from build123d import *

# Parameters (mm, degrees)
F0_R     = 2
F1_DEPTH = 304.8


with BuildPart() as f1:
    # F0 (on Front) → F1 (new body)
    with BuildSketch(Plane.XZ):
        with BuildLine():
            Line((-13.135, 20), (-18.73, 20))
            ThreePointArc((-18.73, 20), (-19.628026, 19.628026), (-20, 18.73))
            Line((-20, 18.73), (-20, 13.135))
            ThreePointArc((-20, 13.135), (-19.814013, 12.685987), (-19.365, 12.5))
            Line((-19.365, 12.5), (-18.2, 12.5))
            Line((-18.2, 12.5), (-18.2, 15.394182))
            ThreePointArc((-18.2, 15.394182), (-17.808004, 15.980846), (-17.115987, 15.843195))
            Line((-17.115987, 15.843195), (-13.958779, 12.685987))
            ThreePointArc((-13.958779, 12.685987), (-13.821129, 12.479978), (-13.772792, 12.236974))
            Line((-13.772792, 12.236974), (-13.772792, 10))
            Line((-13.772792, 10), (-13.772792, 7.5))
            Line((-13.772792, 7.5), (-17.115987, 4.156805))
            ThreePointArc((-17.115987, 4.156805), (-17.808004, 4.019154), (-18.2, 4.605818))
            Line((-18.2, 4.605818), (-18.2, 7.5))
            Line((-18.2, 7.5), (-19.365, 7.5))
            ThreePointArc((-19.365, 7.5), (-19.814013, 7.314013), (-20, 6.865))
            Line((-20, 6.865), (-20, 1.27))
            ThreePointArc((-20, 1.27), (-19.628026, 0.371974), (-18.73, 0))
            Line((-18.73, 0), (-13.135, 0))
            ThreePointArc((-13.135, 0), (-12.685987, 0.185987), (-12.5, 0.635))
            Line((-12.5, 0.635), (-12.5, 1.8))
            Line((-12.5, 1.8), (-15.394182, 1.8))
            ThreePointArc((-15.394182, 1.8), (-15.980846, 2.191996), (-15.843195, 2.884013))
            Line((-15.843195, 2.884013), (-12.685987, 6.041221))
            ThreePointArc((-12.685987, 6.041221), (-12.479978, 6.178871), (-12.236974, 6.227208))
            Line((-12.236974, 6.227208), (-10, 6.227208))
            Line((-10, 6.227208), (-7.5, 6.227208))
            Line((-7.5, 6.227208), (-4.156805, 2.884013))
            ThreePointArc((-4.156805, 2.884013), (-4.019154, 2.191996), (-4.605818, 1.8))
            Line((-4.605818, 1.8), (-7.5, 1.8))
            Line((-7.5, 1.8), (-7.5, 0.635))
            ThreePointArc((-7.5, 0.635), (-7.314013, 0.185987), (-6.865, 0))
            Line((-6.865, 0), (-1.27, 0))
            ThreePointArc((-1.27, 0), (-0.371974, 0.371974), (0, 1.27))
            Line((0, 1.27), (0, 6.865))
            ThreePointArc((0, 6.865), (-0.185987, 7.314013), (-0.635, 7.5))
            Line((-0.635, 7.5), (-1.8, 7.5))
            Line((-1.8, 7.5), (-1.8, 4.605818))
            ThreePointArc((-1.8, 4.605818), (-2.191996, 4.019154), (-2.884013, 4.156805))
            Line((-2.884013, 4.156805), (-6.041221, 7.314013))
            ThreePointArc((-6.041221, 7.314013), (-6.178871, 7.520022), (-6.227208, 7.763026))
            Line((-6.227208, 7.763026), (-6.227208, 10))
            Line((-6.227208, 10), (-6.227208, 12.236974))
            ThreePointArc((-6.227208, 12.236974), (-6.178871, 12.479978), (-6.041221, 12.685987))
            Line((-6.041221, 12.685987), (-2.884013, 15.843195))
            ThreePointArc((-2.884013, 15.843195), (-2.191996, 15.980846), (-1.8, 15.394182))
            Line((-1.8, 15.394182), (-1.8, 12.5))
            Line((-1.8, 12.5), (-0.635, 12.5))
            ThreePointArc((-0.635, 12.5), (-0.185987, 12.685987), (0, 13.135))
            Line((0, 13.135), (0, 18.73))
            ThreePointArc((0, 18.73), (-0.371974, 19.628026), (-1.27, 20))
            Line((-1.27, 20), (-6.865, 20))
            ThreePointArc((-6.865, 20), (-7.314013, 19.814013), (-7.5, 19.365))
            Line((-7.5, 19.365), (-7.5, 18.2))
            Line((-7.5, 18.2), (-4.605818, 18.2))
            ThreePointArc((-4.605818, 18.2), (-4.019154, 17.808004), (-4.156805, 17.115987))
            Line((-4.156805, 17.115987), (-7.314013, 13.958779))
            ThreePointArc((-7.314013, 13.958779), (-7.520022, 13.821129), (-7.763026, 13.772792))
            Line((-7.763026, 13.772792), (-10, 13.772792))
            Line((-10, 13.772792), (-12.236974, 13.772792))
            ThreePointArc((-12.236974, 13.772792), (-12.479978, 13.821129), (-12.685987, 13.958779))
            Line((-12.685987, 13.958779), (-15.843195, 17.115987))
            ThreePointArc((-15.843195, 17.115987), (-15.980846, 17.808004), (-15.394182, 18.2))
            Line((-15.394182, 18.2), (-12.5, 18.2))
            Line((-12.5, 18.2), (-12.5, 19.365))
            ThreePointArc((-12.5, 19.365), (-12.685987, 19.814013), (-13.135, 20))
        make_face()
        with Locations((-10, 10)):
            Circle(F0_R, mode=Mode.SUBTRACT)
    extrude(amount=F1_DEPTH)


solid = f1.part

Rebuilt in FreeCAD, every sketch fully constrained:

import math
import FreeCAD as App
import Part
import Sketcher
from FreeCAD import Vector
Q = App.Units.Quantity

doc = App.newDocument("Part")
body = doc.addObject("PartDesign::Body", "Body")

# Sketch on XZ plane
sketch1 = body.newObject("Sketcher::SketchObject", "Sketch")
sketch1.AttachmentSupport = (doc.getObject("XZ_Plane"), [""])
sketch1.MapMode = "FlatFace"
sketch1.addGeometry(Part.LineSegment(Vector(-13.13, 20, 0), Vector(-18.73, 20, 0)), False)
sketch1.addGeometry(Part.ArcOfCircle(Part.Circle(Vector(-18.73, 18.73, 0), Vector(0, 0, 1), 1.27), math.radians(90), math.radians(180)), False)
sketch1.addGeometry(Part.LineSegment(Vector(-20, 18.73, 0), Vector(-20, 13.13, 0)), False)
sketch1.addGeometry(Part.ArcOfCircle(Part.Circle(Vector(-19.37, 13.13, 0), Vector(0, 0, 1), 0.63), math.radians(180), math.radians(270)), False)
sketch1.addGeometry(Part.LineSegment(Vector(-19.36, 12.5, 0), Vector(-18.2, 12.5, 0)), False)
sketch1.addGeometry(Part.LineSegment(Vector(-18.2, 12.5, 0), Vector(-18.2, 15.39, 0)), False)
sketch1.addGeometry(Part.ArcOfCircle(Part.Circle(Vector(-17.57, 15.39, 0), Vector(0, 0, 1), 0.63), math.radians(45), math.radians(180)), False)
sketch1.addGeometry(Part.LineSegment(Vector(-17.12, 15.84, 0), Vector(-13.96, 12.69, 0)), False)
sketch1.addGeometry(Part.ArcOfCircle(Part.Circle(Vector(-14.41, 12.24, 0), Vector(0, 0, 1), 0.64), math.radians(0), math.radians(45)), False)
sketch1.addGeometry(Part.LineSegment(Vector(-13.77, 12.24, 0), Vector(-13.77, 7.5, 0)), False)
sketch1.addGeometry(Part.LineSegment(Vector(-13.77, 7.5, 0), Vector(-17.12, 4.16, 0)), False)
sketch1.addGeometry(Part.ArcOfCircle(Part.Circle(Vector(-17.57, 4.61, 0), Vector(0, 0, 1), 0.63), math.radians(180), math.radians(315)), False)
sketch1.addGeometry(Part.LineSegment(Vector(-18.2, 4.61, 0), Vector(-18.2, 7.5, 0)), False)
sketch1.addGeometry(Part.LineSegment(Vector(-18.2, 7.5, 0), Vector(-19.36, 7.5, 0)), False)
sketch1.addGeometry(Part.ArcOfCircle(Part.Circle(Vector(-19.37, 6.87, 0), Vector(0, 0, 1), 0.63), math.radians(90), math.radians(180)), False)
sketch1.addGeometry(Part.LineSegment(Vector(-20, 6.87, 0), Vector(-20, 1.27, 0)), False)
sketch1.addGeometry(Part.ArcOfCircle(Part.Circle(Vector(-18.73, 1.27, 0), Vector(0, 0, 1), 1.27), math.radians(180), math.radians(270)), False)
sketch1.addGeometry(Part.LineSegment(Vector(-18.73, 0, 0), Vector(-13.13, 0, 0)), False)
sketch1.addGeometry(Part.ArcOfCircle(Part.Circle(Vector(-13.13, 0.63, 0), Vector(0, 0, 1), 0.63), math.radians(-90), math.radians(0)), False)
sketch1.addGeometry(Part.LineSegment(Vector(-12.5, 0.64, 0), Vector(-12.5, 1.8, 0)), False)
sketch1.addGeometry(Part.LineSegment(Vector(-12.5, 1.8, 0), Vector(-15.39, 1.8, 0)), False)
sketch1.addGeometry(Part.ArcOfCircle(Part.Circle(Vector(-15.39, 2.43, 0), Vector(0, 0, 1), 0.63), math.radians(135), math.radians(270)), False)
sketch1.addGeometry(Part.LineSegment(Vector(-15.84, 2.88, 0), Vector(-12.69, 6.04, 0)), False)
sketch1.addGeometry(Part.ArcOfCircle(Part.Circle(Vector(-12.24, 5.59, 0), Vector(0, 0, 1), 0.64), math.radians(90), math.radians(135)), False)
sketch1.addGeometry(Part.LineSegment(Vector(-12.24, 6.23, 0), Vector(-7.5, 6.23, 0)), False)
sketch1.addGeometry(Part.LineSegment(Vector(-7.5, 6.23, 0), Vector(-4.16, 2.88, 0)), False)
sketch1.addGeometry(Part.ArcOfCircle(Part.Circle(Vector(-4.61, 2.43, 0), Vector(0, 0, 1), 0.63), math.radians(-90), math.radians(45)), False)
sketch1.addGeometry(Part.LineSegment(Vector(-4.61, 1.8, 0), Vector(-7.5, 1.8, 0)), False)
sketch1.addGeometry(Part.LineSegment(Vector(-7.5, 1.8, 0), Vector(-7.5, 0.64, 0)), False)
sketch1.addGeometry(Part.ArcOfCircle(Part.Circle(Vector(-6.87, 0.63, 0), Vector(0, 0, 1), 0.63), math.radians(180), math.radians(270)), False)
sketch1.addGeometry(Part.LineSegment(Vector(-6.87, 0, 0), Vector(-1.27, 0, 0)), False)
sketch1.addGeometry(Part.ArcOfCircle(Part.Circle(Vector(-1.27, 1.27, 0), Vector(0, 0, 1), 1.27), math.radians(-90), math.radians(0)), False)
sketch1.addGeometry(Part.LineSegment(Vector(0, 1.27, 0), Vector(0, 6.87, 0)), False)
sketch1.addGeometry(Part.ArcOfCircle(Part.Circle(Vector(-0.63, 6.87, 0), Vector(0, 0, 1), 0.63), math.radians(0), math.radians(90)), False)
sketch1.addGeometry(Part.LineSegment(Vector(-0.64, 7.5, 0), Vector(-1.8, 7.5, 0)), False)
sketch1.addGeometry(Part.LineSegment(Vector(-1.8, 7.5, 0), Vector(-1.8, 4.61, 0)), False)
sketch1.addGeometry(Part.ArcOfCircle(Part.Circle(Vector(-2.43, 4.61, 0), Vector(0, 0, 1), 0.63), math.radians(-135), math.radians(0)), False)
sketch1.addGeometry(Part.LineSegment(Vector(-2.88, 4.16, 0), Vector(-6.04, 7.31, 0)), False)
sketch1.addGeometry(Part.ArcOfCircle(Part.Circle(Vector(-5.59, 7.76, 0), Vector(0, 0, 1), 0.64), math.radians(-180), math.radians(-135)), False)
sketch1.addGeometry(Part.LineSegment(Vector(-6.23, 7.76, 0), Vector(-6.23, 12.24, 0)), False)
sketch1.addGeometry(Part.ArcOfCircle(Part.Circle(Vector(-5.59, 12.24, 0), Vector(0, 0, 1), 0.64), math.radians(135), math.radians(180)), False)
sketch1.addGeometry(Part.LineSegment(Vector(-6.04, 12.69, 0), Vector(-2.88, 15.84, 0)), False)
sketch1.addGeometry(Part.ArcOfCircle(Part.Circle(Vector(-2.43, 15.39, 0), Vector(0, 0, 1), 0.63), math.radians(0), math.radians(135)), False)
sketch1.addGeometry(Part.LineSegment(Vector(-1.8, 15.39, 0), Vector(-1.8, 12.5, 0)), False)
sketch1.addGeometry(Part.LineSegment(Vector(-1.8, 12.5, 0), Vector(-0.64, 12.5, 0)), False)
sketch1.addGeometry(Part.ArcOfCircle(Part.Circle(Vector(-0.63, 13.13, 0), Vector(0, 0, 1), 0.63), math.radians(-90), math.radians(0)), False)
sketch1.addGeometry(Part.LineSegment(Vector(0, 13.13, 0), Vector(0, 18.73, 0)), False)
sketch1.addGeometry(Part.ArcOfCircle(Part.Circle(Vector(-1.27, 18.73, 0), Vector(0, 0, 1), 1.27), math.radians(0), math.radians(90)), False)
sketch1.addGeometry(Part.LineSegment(Vector(-1.27, 20, 0), Vector(-6.87, 20, 0)), False)
sketch1.addGeometry(Part.ArcOfCircle(Part.Circle(Vector(-6.87, 19.37, 0), Vector(0, 0, 1), 0.63), math.radians(90), math.radians(180)), False)
sketch1.addGeometry(Part.LineSegment(Vector(-7.5, 19.36, 0), Vector(-7.5, 18.2, 0)), False)
sketch1.addGeometry(Part.LineSegment(Vector(-7.5, 18.2, 0), Vector(-4.61, 18.2, 0)), False)
sketch1.addGeometry(Part.ArcOfCircle(Part.Circle(Vector(-4.61, 17.57, 0), Vector(0, 0, 1), 0.63), math.radians(-45), math.radians(90)), False)
sketch1.addGeometry(Part.LineSegment(Vector(-4.16, 17.12, 0), Vector(-7.31, 13.96, 0)), False)
sketch1.addGeometry(Part.ArcOfCircle(Part.Circle(Vector(-7.76, 14.41, 0), Vector(0, 0, 1), 0.64), math.radians(-90), math.radians(-45)), False)
sketch1.addGeometry(Part.LineSegment(Vector(-7.76, 13.77, 0), Vector(-12.24, 13.77, 0)), False)
sketch1.addGeometry(Part.ArcOfCircle(Part.Circle(Vector(-12.24, 14.41, 0), Vector(0, 0, 1), 0.64), math.radians(-135), math.radians(-90)), False)
sketch1.addGeometry(Part.LineSegment(Vector(-12.69, 13.96, 0), Vector(-15.84, 17.12, 0)), False)
sketch1.addGeometry(Part.ArcOfCircle(Part.Circle(Vector(-15.39, 17.57, 0), Vector(0, 0, 1), 0.63), math.radians(90), math.radians(225)), False)
sketch1.addGeometry(Part.LineSegment(Vector(-15.39, 18.2, 0), Vector(-12.5, 18.2, 0)), False)
sketch1.addGeometry(Part.LineSegment(Vector(-12.5, 18.2, 0), Vector(-12.5, 19.36, 0)), False)
sketch1.addGeometry(Part.ArcOfCircle(Part.Circle(Vector(-13.13, 19.37, 0), Vector(0, 0, 1), 0.63), math.radians(0), math.radians(90)), False)
sketch1.addGeometry(Part.Circle(Vector(-10, 10, 0), Vector(0, 0, 1), 2), False)
sketch1.addConstraint(Sketcher.Constraint("Tangent", 0, 2, 1, 1))
sketch1.addConstraint(Sketcher.Constraint("Tangent", 1, 2, 2, 1))
sketch1.addConstraint(Sketcher.Constraint("Tangent", 2, 2, 3, 1))
sketch1.addConstraint(Sketcher.Constraint("Tangent", 3, 2, 4, 1))
sketch1.addConstraint(Sketcher.Constraint("Coincident", 4, 2, 5, 1))
sketch1.addConstraint(Sketcher.Constraint("Tangent", 5, 2, 6, 2))
sketch1.addConstraint(Sketcher.Constraint("Tangent", 6, 1, 7, 1))
sketch1.addConstraint(Sketcher.Constraint("Coincident", 7, 2, 8, 2))
sketch1.addConstraint(Sketcher.Constraint("Coincident", 8, 1, 9, 1))
sketch1.addConstraint(Sketcher.Constraint("Coincident", 9, 2, 10, 1))
sketch1.addConstraint(Sketcher.Constraint("Tangent", 10, 2, 11, 2))
sketch1.addConstraint(Sketcher.Constraint("Tangent", 11, 1, 12, 1))
sketch1.addConstraint(Sketcher.Constraint("Coincident", 12, 2, 13, 1))
sketch1.addConstraint(Sketcher.Constraint("Tangent", 13, 2, 14, 1))
sketch1.addConstraint(Sketcher.Constraint("Tangent", 14, 2, 15, 1))
sketch1.addConstraint(Sketcher.Constraint("Tangent", 15, 2, 16, 1))
sketch1.addConstraint(Sketcher.Constraint("Tangent", 16, 2, 17, 1))
sketch1.addConstraint(Sketcher.Constraint("Tangent", 17, 2, 18, 1))
sketch1.addConstraint(Sketcher.Constraint("Tangent", 18, 2, 19, 1))
sketch1.addConstraint(Sketcher.Constraint("Coincident", 19, 2, 20, 1))
sketch1.addConstraint(Sketcher.Constraint("Tangent", 20, 2, 21, 2))
sketch1.addConstraint(Sketcher.Constraint("Tangent", 21, 1, 22, 1))
sketch1.addConstraint(Sketcher.Constraint("Coincident", 22, 2, 23, 2))
sketch1.addConstraint(Sketcher.Constraint("Coincident", 23, 1, 24, 1))
sketch1.addConstraint(Sketcher.Constraint("Coincident", 24, 2, 25, 1))
sketch1.addConstraint(Sketcher.Constraint("Tangent", 25, 2, 26, 2))
sketch1.addConstraint(Sketcher.Constraint("Tangent", 26, 1, 27, 1))
sketch1.addConstraint(Sketcher.Constraint("Coincident", 27, 2, 28, 1))
sketch1.addConstraint(Sketcher.Constraint("Tangent", 28, 2, 29, 1))
sketch1.addConstraint(Sketcher.Constraint("Tangent", 29, 2, 30, 1))
sketch1.addConstraint(Sketcher.Constraint("Tangent", 30, 2, 31, 1))
sketch1.addConstraint(Sketcher.Constraint("Tangent", 31, 2, 32, 1))
sketch1.addConstraint(Sketcher.Constraint("Tangent", 32, 2, 33, 1))
sketch1.addConstraint(Sketcher.Constraint("Tangent", 33, 2, 34, 1))
sketch1.addConstraint(Sketcher.Constraint("Coincident", 34, 2, 35, 1))
sketch1.addConstraint(Sketcher.Constraint("Tangent", 35, 2, 36, 2))
sketch1.addConstraint(Sketcher.Constraint("Tangent", 36, 1, 37, 1))
sketch1.addConstraint(Sketcher.Constraint("Coincident", 37, 2, 38, 2))
sketch1.addConstraint(Sketcher.Constraint("Coincident", 38, 1, 39, 1))
sketch1.addConstraint(Sketcher.Constraint("Coincident", 39, 2, 40, 2))
sketch1.addConstraint(Sketcher.Constraint("Coincident", 40, 1, 41, 1))
sketch1.addConstraint(Sketcher.Constraint("Tangent", 41, 2, 42, 2))
sketch1.addConstraint(Sketcher.Constraint("Tangent", 42, 1, 43, 1))
sketch1.addConstraint(Sketcher.Constraint("Coincident", 43, 2, 44, 1))
sketch1.addConstraint(Sketcher.Constraint("Tangent", 44, 2, 45, 1))
sketch1.addConstraint(Sketcher.Constraint("Tangent", 45, 2, 46, 1))
sketch1.addConstraint(Sketcher.Constraint("Tangent", 46, 2, 47, 1))
sketch1.addConstraint(Sketcher.Constraint("Tangent", 47, 2, 48, 1))
sketch1.addConstraint(Sketcher.Constraint("Tangent", 48, 2, 49, 1))
sketch1.addConstraint(Sketcher.Constraint("Tangent", 49, 2, 50, 1))
sketch1.addConstraint(Sketcher.Constraint("Coincident", 50, 2, 51, 1))
sketch1.addConstraint(Sketcher.Constraint("Tangent", 51, 2, 52, 2))
sketch1.addConstraint(Sketcher.Constraint("Tangent", 52, 1, 53, 1))
sketch1.addConstraint(Sketcher.Constraint("Coincident", 53, 2, 54, 2))
sketch1.addConstraint(Sketcher.Constraint("Coincident", 54, 1, 55, 1))
sketch1.addConstraint(Sketcher.Constraint("Coincident", 55, 2, 56, 2))
sketch1.addConstraint(Sketcher.Constraint("Coincident", 56, 1, 57, 1))
sketch1.addConstraint(Sketcher.Constraint("Tangent", 57, 2, 58, 2))
sketch1.addConstraint(Sketcher.Constraint("Tangent", 58, 1, 59, 1))
sketch1.addConstraint(Sketcher.Constraint("Coincident", 59, 2, 60, 1))
sketch1.addConstraint(Sketcher.Constraint("Tangent", 60, 2, 61, 1))
sketch1.addConstraint(Sketcher.Constraint("Tangent", 61, 2, 0, 1))
sketch1.addConstraint(Sketcher.Constraint("Horizontal", 0))
sketch1.addConstraint(Sketcher.Constraint("Vertical", 2))
sketch1.addConstraint(Sketcher.Constraint("Horizontal", 4))
sketch1.addConstraint(Sketcher.Constraint("Vertical", 5))
sketch1.addConstraint(Sketcher.Constraint("Vertical", 9))
sketch1.addConstraint(Sketcher.Constraint("Vertical", 12))
sketch1.addConstraint(Sketcher.Constraint("Horizontal", 13))
sketch1.addConstraint(Sketcher.Constraint("Vertical", 15))
sketch1.addConstraint(Sketcher.Constraint("Horizontal", 17))
sketch1.addConstraint(Sketcher.Constraint("Vertical", 19))
sketch1.addConstraint(Sketcher.Constraint("Horizontal", 20))
sketch1.addConstraint(Sketcher.Constraint("Horizontal", 24))
sketch1.addConstraint(Sketcher.Constraint("Horizontal", 27))
sketch1.addConstraint(Sketcher.Constraint("Vertical", 28))
sketch1.addConstraint(Sketcher.Constraint("Horizontal", 30))
sketch1.addConstraint(Sketcher.Constraint("Vertical", 32))
sketch1.addConstraint(Sketcher.Constraint("Horizontal", 34))
sketch1.addConstraint(Sketcher.Constraint("Vertical", 35))
sketch1.addConstraint(Sketcher.Constraint("Vertical", 39))
sketch1.addConstraint(Sketcher.Constraint("Vertical", 43))
sketch1.addConstraint(Sketcher.Constraint("Horizontal", 44))
sketch1.addConstraint(Sketcher.Constraint("Vertical", 46))
sketch1.addConstraint(Sketcher.Constraint("Horizontal", 48))
sketch1.addConstraint(Sketcher.Constraint("Vertical", 50))
sketch1.addConstraint(Sketcher.Constraint("Horizontal", 51))
sketch1.addConstraint(Sketcher.Constraint("Horizontal", 55))
sketch1.addConstraint(Sketcher.Constraint("Horizontal", 59))
sketch1.addConstraint(Sketcher.Constraint("Vertical", 60))
sketch1.addConstraint(Sketcher.Constraint("Equal", 3, 6))
sketch1.addConstraint(Sketcher.Constraint("Equal", 6, 11))
sketch1.addConstraint(Sketcher.Constraint("Equal", 11, 14))
sketch1.addConstraint(Sketcher.Constraint("Equal", 1, 16))
sketch1.addConstraint(Sketcher.Constraint("Equal", 14, 18))
sketch1.addConstraint(Sketcher.Constraint("Equal", 18, 21))
sketch1.addConstraint(Sketcher.Constraint("Equal", 8, 23))
sketch1.addConstraint(Sketcher.Constraint("Equal", 21, 26))
sketch1.addConstraint(Sketcher.Constraint("Equal", 26, 29))
sketch1.addConstraint(Sketcher.Constraint("Equal", 16, 31))
sketch1.addConstraint(Sketcher.Constraint("Equal", 29, 33))
sketch1.addConstraint(Sketcher.Constraint("Equal", 33, 36))
sketch1.addConstraint(Sketcher.Constraint("Equal", 23, 38))
sketch1.addConstraint(Sketcher.Constraint("Equal", 38, 40))
sketch1.addConstraint(Sketcher.Constraint("Equal", 36, 42))
sketch1.addConstraint(Sketcher.Constraint("Equal", 42, 45))
sketch1.addConstraint(Sketcher.Constraint("Equal", 31, 47))
sketch1.addConstraint(Sketcher.Constraint("Equal", 45, 49))
sketch1.addConstraint(Sketcher.Constraint("Equal", 49, 52))
sketch1.addConstraint(Sketcher.Constraint("Equal", 40, 54))
sketch1.addConstraint(Sketcher.Constraint("Equal", 54, 56))
sketch1.addConstraint(Sketcher.Constraint("Equal", 52, 58))
sketch1.addConstraint(Sketcher.Constraint("Equal", 58, 61))
sketch1.addConstraint(Sketcher.Constraint("PointOnObject", 16, 2, -1))
sketch1.addConstraint(Sketcher.Constraint("PointOnObject", 29, 2, -1))
sketch1.addConstraint(Sketcher.Constraint("PointOnObject", 31, 2, -2))
sketch1.addConstraint(Sketcher.Constraint("PointOnObject", 45, 2, -2))
sketch1.addConstraint(Sketcher.Constraint("Perpendicular", 7, 10))
sketch1.addConstraint(Sketcher.Constraint("Parallel", 10, 22))
sketch1.addConstraint(Sketcher.Constraint("Perpendicular", 22, 25))
sketch1.addConstraint(Sketcher.Constraint("Parallel", 25, 37))
sketch1.addConstraint(Sketcher.Constraint("Perpendicular", 37, 41))
sketch1.addConstraint(Sketcher.Constraint("Parallel", 41, 53))
sketch1.addConstraint(Sketcher.Constraint("Perpendicular", 53, 57))
sketch1.addConstraint(Sketcher.Constraint("Horizontal", 21, 3, 26, 3))
sketch1.addConstraint(Sketcher.Constraint("Horizontal", 14, 3, 33, 3))
sketch1.addConstraint(Sketcher.Constraint("Horizontal", 11, 3, 36, 3))
sketch1.addConstraint(Sketcher.Constraint("Horizontal", 8, 3, 40, 3))
sketch1.addConstraint(Sketcher.Constraint("Horizontal", 6, 3, 42, 3))
sketch1.addConstraint(Sketcher.Constraint("Horizontal", 3, 3, 45, 3))
sketch1.addConstraint(Sketcher.Constraint("Horizontal", 1, 3, 47, 3))
sketch1.addConstraint(Sketcher.Constraint("Horizontal", 52, 3, 58, 3))
sketch1.addConstraint(Sketcher.Constraint("Horizontal", 9, 2, 12, 2))
sketch1.addConstraint(Sketcher.Constraint("Horizontal", 21, 1, 25, 2))
sketch1.addConstraint(Sketcher.Constraint("Horizontal", 8, 1, 39, 2))
sketch1.addConstraint(Sketcher.Constraint("Horizontal", 7, 2, 40, 1))
sketch1.addConstraint(Sketcher.Constraint("Horizontal", 53, 2, 56, 1))
sketch1.addConstraint(Sketcher.Constraint("Vertical", 6, 3, 11, 3))
sketch1.addConstraint(Sketcher.Constraint("Vertical", 3, 3, 14, 3))
sketch1.addConstraint(Sketcher.Constraint("Vertical", 36, 3, 42, 3))
sketch1.addConstraint(Sketcher.Constraint("Vertical", 29, 3, 49, 3))
sketch1.addConstraint(Sketcher.Constraint("Vertical", 26, 3, 52, 3))
sketch1.addConstraint(Sketcher.Constraint("Vertical", 23, 3, 56, 3))
sketch1.addConstraint(Sketcher.Constraint("Vertical", 21, 3, 58, 3))
sketch1.addConstraint(Sketcher.Constraint("Vertical", 18, 3, 61, 3))
sketch1.addConstraint(Sketcher.Constraint("Vertical", 24, 2, 27, 2))
sketch1.addConstraint(Sketcher.Constraint("Vertical", 37, 2, 40, 1))
sketch1.addConstraint(Sketcher.Constraint("Vertical", 23, 1, 55, 2))
sketch1.addConstraint(Sketcher.Constraint("Vertical", 22, 2, 56, 1))
sketch1.addConstraint(Sketcher.Constraint("Equal", 20, 27))
sketch1.addConstraint(Sketcher.Constraint("Equal", 17, 30))
sketch1.addConstraint(Sketcher.Constraint("Equal", 13, 34))
sketch1.addConstraint(Sketcher.Constraint("Equal", 48, 2))
sketch1.addConstraint(Sketcher.Constraint("Equal", 59, 5))
sketch1.addConstraint(Sketcher.Constraint("Equal", 24, 9))
sketch1.addConstraint(Sketcher.Constraint("Equal", 5, 12))
sketch1.addConstraint(Sketcher.Constraint("Equal", 2, 15))
sketch1.addConstraint(Sketcher.Constraint("Equal", 44, 19))
sketch1.addConstraint(Sketcher.Constraint("Equal", 55, 39))
sketch1.addConstraint(Sketcher.Constraint("Equal", 28, 50))
sketch1.addConstraint(Sketcher.Constraint("Equal", 7, 22))
sketch1.addConstraint(Sketcher.Constraint("Radius", 1, Q("0.0499999 in")))
sketch1.addConstraint(Sketcher.Constraint("Radius", 3, Q("0.025 in")))
sketch1.addConstraint(Sketcher.Constraint("Diameter", 62, 4.0))
sketch1.addConstraint(Sketcher.Constraint("DistanceX", 0, 2, 0, 1, 5.595))
sketch1.addConstraint(Sketcher.Constraint("DistanceX", 4, 1, 4, 2, 1.165))
sketch1.addConstraint(Sketcher.Constraint("Radius", 8, 0.635007))
sketch1.addConstraint(Sketcher.Constraint("DistanceX", 27, 2, 27, 1, 2.894182))
sketch1.addConstraint(Sketcher.Constraint("DistanceX", 1, 3, -1, 1, 18.730001))
sketch1.addConstraint(Sketcher.Constraint("DistanceY", -1, 1, 1, 3, 18.730001))
sketch1.addConstraint(Sketcher.Constraint("DistanceX", 62, 3, -1, 1, 10.0))
sketch1.addConstraint(Sketcher.Constraint("DistanceY", -1, 1, 62, 3, 10.0))
sketch1.addConstraint(Sketcher.Constraint("DistanceX", 24, 1, 24, 2, 4.736974))
sketch1.addConstraint(Sketcher.Constraint("DistanceX", 55, 2, 55, 1, 4.473948))
sketch1.addConstraint(Sketcher.Constraint("DistanceX", 7, 2, -1, 1, 13.958779))
pad1 = body.newObject("PartDesign::Pad", "Pad")
pad1.Profile = sketch1
pad1.Length = Q("12 in")

doc.recompute()
